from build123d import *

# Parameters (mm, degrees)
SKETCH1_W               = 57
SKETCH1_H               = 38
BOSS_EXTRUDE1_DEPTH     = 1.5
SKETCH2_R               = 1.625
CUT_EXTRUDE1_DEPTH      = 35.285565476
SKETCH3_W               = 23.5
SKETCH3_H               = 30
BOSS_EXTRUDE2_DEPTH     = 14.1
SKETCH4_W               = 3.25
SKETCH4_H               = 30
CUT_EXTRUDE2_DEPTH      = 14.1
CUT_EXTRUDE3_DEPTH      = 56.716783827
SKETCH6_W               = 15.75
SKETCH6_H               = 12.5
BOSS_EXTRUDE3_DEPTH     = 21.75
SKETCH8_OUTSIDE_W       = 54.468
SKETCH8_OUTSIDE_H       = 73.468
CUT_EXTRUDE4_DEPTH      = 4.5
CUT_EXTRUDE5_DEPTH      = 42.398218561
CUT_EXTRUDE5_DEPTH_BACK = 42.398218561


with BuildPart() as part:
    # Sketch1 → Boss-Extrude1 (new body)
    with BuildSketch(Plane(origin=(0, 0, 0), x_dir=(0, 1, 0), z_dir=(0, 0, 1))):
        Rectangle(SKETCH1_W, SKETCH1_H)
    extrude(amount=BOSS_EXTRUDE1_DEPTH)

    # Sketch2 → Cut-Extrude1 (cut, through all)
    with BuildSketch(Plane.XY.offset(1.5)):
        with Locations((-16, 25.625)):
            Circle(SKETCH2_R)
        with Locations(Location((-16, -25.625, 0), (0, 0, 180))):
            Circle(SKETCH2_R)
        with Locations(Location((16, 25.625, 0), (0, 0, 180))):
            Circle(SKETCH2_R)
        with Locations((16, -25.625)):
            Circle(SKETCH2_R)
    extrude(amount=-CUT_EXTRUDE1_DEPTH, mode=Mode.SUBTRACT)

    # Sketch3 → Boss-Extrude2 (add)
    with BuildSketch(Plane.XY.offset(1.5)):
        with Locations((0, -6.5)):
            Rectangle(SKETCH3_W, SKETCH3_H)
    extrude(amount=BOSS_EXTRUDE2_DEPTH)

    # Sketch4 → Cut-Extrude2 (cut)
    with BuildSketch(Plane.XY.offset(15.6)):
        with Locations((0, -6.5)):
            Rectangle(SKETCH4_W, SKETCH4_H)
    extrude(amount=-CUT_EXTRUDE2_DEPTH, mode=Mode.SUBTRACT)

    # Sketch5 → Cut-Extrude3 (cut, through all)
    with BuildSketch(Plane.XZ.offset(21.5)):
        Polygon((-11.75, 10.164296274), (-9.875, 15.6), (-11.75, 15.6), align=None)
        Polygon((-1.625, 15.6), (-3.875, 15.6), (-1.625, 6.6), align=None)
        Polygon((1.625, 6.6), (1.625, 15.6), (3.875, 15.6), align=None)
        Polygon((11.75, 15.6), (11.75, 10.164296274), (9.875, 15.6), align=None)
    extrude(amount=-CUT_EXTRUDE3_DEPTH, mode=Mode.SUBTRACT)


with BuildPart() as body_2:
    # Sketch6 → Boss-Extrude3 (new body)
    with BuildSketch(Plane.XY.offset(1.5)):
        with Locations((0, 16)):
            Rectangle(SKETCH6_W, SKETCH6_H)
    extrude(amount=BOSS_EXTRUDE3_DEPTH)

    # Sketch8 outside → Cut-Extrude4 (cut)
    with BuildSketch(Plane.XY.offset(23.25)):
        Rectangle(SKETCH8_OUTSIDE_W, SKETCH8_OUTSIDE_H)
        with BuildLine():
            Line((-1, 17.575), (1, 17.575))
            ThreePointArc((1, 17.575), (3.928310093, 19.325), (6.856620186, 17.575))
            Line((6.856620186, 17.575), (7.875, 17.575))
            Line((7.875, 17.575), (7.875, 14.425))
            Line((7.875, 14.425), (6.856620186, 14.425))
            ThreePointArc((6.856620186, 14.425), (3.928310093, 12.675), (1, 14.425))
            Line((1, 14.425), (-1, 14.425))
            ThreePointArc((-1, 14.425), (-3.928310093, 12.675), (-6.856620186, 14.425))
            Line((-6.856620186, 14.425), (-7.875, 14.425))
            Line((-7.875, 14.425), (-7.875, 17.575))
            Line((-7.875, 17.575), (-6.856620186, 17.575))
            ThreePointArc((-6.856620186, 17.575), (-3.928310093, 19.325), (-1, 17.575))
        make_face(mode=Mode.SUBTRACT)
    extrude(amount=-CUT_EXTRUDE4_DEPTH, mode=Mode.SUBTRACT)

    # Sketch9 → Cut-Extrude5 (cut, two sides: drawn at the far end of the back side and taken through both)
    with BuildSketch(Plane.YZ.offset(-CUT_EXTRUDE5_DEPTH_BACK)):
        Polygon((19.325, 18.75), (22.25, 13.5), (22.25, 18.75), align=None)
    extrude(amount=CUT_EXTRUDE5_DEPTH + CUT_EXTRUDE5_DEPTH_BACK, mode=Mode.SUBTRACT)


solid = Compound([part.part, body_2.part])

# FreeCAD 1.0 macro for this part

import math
import FreeCAD as App
import Part
import Sketcher
from FreeCAD import Vector

doc = App.newDocument("Part")
body = doc.addObject("PartDesign::Body", "Body")

# Sketch on XY plane
sketch1 = doc.addObject("Sketcher::SketchObject", "Sketch")
body.addObject(sketch1)
sketch1.AttachmentSupport = (doc.XY_Plane, [""])
sketch1.MapMode = "FlatFace"
sketch1.addGeometry([
    Part.LineSegment(Vector(-19, -28, 0), Vector(19, -28, 0)),
    Part.LineSegment(Vector(19, -28, 0), Vector(19, 28, 0)),
    Part.LineSegment(Vector(19, 28, 0), Vector(-19, 28, 0)),
    Part.LineSegment(Vector(-19, 28, 0), Vector(-19, -28, 0)),
], False)
sketch1.addConstraint([
    Sketcher.Constraint("Coincident", 0, 2, 1, 1),
    Sketcher.Constraint("Coincident", 1, 2, 2, 1),
    Sketcher.Constraint("Coincident", 2, 2, 3, 1),
    Sketcher.Constraint("Coincident", 3, 2, 0, 1),
    Sketcher.Constraint("Horizontal", 0),
    Sketcher.Constraint("Vertical", 1),
    Sketcher.Constraint("Horizontal", 2),
    Sketcher.Constraint("Vertical", 3),
    Sketcher.Constraint("Symmetric", 0, 2, 2, 2, -1, 1),
    Sketcher.Constraint("DistanceX", 0, 1, 0, 2, 38.0),
    Sketcher.Constraint("DistanceY", 1, 1, 1, 2, 57.0),
])
pad1 = doc.addObject("PartDesign::Pad", "Pad")
body.addObject(pad1)
pad1.Profile = sketch1
pad1.Length = 1.5

# Sketch on XY plane
sketch2 = doc.addObject("Sketcher::SketchObject", "Sketch001")
body.addObject(sketch2)
sketch2.AttachmentSupport = (doc.XY_Plane, [""])
sketch2.MapMode = "FlatFace"
sketch2.AttachmentOffset = App.Placement(Vector(0, 0, 1.5), App.Rotation())
sketch2.addGeometry([
    Part.Circle(Vector(-16, 25.6, 0), Vector(0, 0, 1), 1.6),
    Part.Circle(Vector(-16, -25.6, 0), Vector(0, 0, 1), 1.6),
    Part.Circle(Vector(16, 25.6, 0), Vector(0, 0, 1), 1.6),
    Part.Circle(Vector(16, -25.6, 0), Vector(0, 0, 1), 1.6),
], False)
sketch2.addConstraint([
    Sketcher.Constraint("Equal", 0, 1),
    Sketcher.Constraint("Equal", 1, 2),
    Sketcher.Constraint("Equal", 2, 3),
    Sketcher.Constraint("Symmetric", 1, 3, 2, 3, -1, 1),
    Sketcher.Constraint("Symmetric", 0, 3, 3, 3, -1, 1),
    Sketcher.Constraint("Symmetric", 0, 3, 2, 3, -2),
    Sketcher.Constraint("Diameter", 0, 3.25),
    Sketcher.Constraint("DistanceX", 0, 3, -1, 1, 16.0),
    Sketcher.Constraint("DistanceY", 1, 3, 0, 3, 51.25),
])
pocket1 = doc.addObject("PartDesign::Pocket", "Pocket")
body.addObject(pocket1)
pocket1.Profile = sketch2
pocket1.Type = "ThroughAll"

# Sketch on XY plane
sketch3 = doc.addObject("Sketcher::SketchObject", "Sketch002")
body.addObject(sketch3)
sketch3.AttachmentSupport = (doc.XY_Plane, [""])
sketch3.MapMode = "FlatFace"
sketch3.AttachmentOffset = App.Placement(Vector(0, 0, 1.5), App.Rotation())
sketch3.addGeometry([
    Part.LineSegment(Vector(-12, 8, 0), Vector(-12, -22, 0)),
    Part.LineSegment(Vector(-12, -22, 0), Vector(12, -22, 0)),
    Part.LineSegment(Vector(12, -22, 0), Vector(12, 8, 0)),
    Part.LineSegment(Vector(12, 8, 0), Vector(-12, 8, 0)),
], False)
sketch3.addConstraint([
    Sketcher.Constraint("Coincident", 0, 2, 1, 1),
    Sketcher.Constraint("Coincident", 1, 2, 2, 1),
    Sketcher.Constraint("Coincident", 2, 2, 3, 1),
    Sketcher.Constraint("Coincident", 3, 2, 0, 1),
    Sketcher.Constraint("Vertical", 0),
    Sketcher.Constraint("Horizontal", 1),
    Sketcher.Constraint("Vertical", 2),
    Sketcher.Constraint("Horizontal", 3),
    Sketcher.Constraint("DistanceY", 0, 2, 0, 1, 30.0),
    Sketcher.Constraint("DistanceX", 1, 1, 1, 2, 23.5),
    Sketcher.Constraint("DistanceY", 0, 2, -1, 1, 21.5),
    Sketcher.Constraint("DistanceX", 0, 2, -1, 1, 11.75),
])
pad2 = doc.addObject("PartDesign::Pad", "Pad001")
body.addObject(pad2)
pad2.Profile = sketch3
pad2.Length = 14.1

# Sketch on XY plane
sketch4 = doc.addObject("Sketcher::SketchObject", "Sketch003")
body.addObject(sketch4)
sketch4.AttachmentSupport = (doc.XY_Plane, [""])
sketch4.MapMode = "FlatFace"
sketch4.AttachmentOffset = App.Placement(Vector(0, 0, 15.6), App.Rotation())
sketch4.addGeometry([
    Part.LineSegment(Vector(-1.6, 8.5, 0), Vector(-1.6, -21.5, 0)),
    Part.LineSegment(Vector(-1.6, -21.5, 0), Vector(1.6, -21.5, 0)),
    Part.LineSegment(Vector(1.6, -21.5, 0), Vector(1.6, 8.5, 0)),
    Part.LineSegment(Vector(1.6, 8.5, 0), Vector(-1.6, 8.5, 0)),
], False)
sketch4.addConstraint([
    Sketcher.Constraint("Coincident", 0, 2, 1, 1),
    Sketcher.Constraint("Coincident", 1, 2, 2, 1),
    Sketcher.Constraint("Coincident", 2, 2, 3, 1),
    Sketcher.Constraint("Coincident", 3, 2, 0, 1),
    Sketcher.Constraint("Vertical", 0),
    Sketcher.Constraint("Horizontal", 1),
    Sketcher.Constraint("Vertical", 2),
    Sketcher.Constraint("Horizontal", 3),
    Sketcher.Constraint("DistanceY", 0, 2, 0, 1, 30.0),
    Sketcher.Constraint("DistanceX", 1, 1, 1, 2, 3.25),
    Sketcher.Constraint("DistanceY", 0, 2, -1, 1, 21.5),
    Sketcher.Constraint("DistanceX", 0, 2, -1, 1, 1.625),
])
pocket2 = doc.addObject("PartDesign::Pocket", "Pocket001")
body.addObject(pocket2)
pocket2.Profile = sketch4
pocket2.Length = 14.1

# Sketch on XZ plane
sketch5 = doc.addObject("Sketcher::SketchObject", "Sketch004")
body.addObject(sketch5)
sketch5.AttachmentSupport = (doc.XZ_Plane, [""])
sketch5.MapMode = "FlatFace"
sketch5.AttachmentOffset = App.Placement(Vector(0, 0, 21.5), App.Rotation())
sketch5.addGeometry([
    Part.LineSegment(Vector(-11.8, 10.2, 0), Vector(-9.9, 15.6, 0)),  # 0
    Part.LineSegment(Vector(-9.9, 15.6, 0), Vector(-11.8, 15.6, 0)),  # 1
    Part.LineSegment(Vector(-11.8, 15.6, 0), Vector(-11.8, 10.2, 0)),  # 2
    Part.LineSegment(Vector(-1.6, 15.6, 0), Vector(-3.9, 15.6, 0)),  # 3
    Part.LineSegment(Vector(-3.9, 15.6, 0), Vector(-1.6, 6.6, 0)),  # 4
    Part.LineSegment(Vector(-1.6, 6.6, 0), Vector(-1.6, 15.6, 0)),  # 5
    Part.LineSegment(Vector(1.6, 15.6, 0), Vector(1.6, 6.6, 0)),  # 6
    Part.LineSegment(Vector(1.6, 6.6, 0), Vector(3.9, 15.6, 0)),  # 7
    Part.LineSegment(Vector(3.9, 15.6, 0), Vector(1.6, 15.6, 0)),  # 8
    Part.LineSegment(Vector(11.8, 10.2, 0), Vector(11.8, 15.6, 0)),  # 9
    Part.LineSegment(Vector(11.8, 15.6, 0), Vector(9.9, 15.6, 0)),  # 10
    Part.LineSegment(Vector(9.9, 15.6, 0), Vector(11.8, 10.2, 0)),  # 11
], False)
sketch5.addConstraint([
    Sketcher.Constraint("Coincident", 0, 2, 1, 1),
    Sketcher.Constraint("Coincident", 1, 2, 2, 1),
    Sketcher.Constraint("Coincident", 2, 2, 0, 1),
    Sketcher.Constraint("Coincident", 3, 2, 4, 1),
    Sketcher.Constraint("Coincident", 4, 2, 5, 1),
    Sketcher.Constraint("Coincident", 5, 2, 3, 1),
    Sketcher.Constraint("Coincident", 6, 2, 7, 1),
    Sketcher.Constraint("Coincident", 7, 2, 8, 1),
    Sketcher.Constraint("Coincident", 8, 2, 6, 1),
    Sketcher.Constraint("Coincident", 9, 2, 10, 1),
    Sketcher.Constraint("Coincident", 10, 2, 11, 1),
    Sketcher.Constraint("Coincident", 11, 2, 9, 1),
    Sketcher.Constraint("Horizontal", 1),
    Sketcher.Constraint("Vertical", 2),
    Sketcher.Constraint("Horizontal", 3),
    Sketcher.Constraint("Vertical", 5),
    Sketcher.Constraint("Vertical", 6),
    Sketcher.Constraint("Horizontal", 8),
    Sketcher.Constraint("Vertical", 9),
    Sketcher.Constraint("Horizontal", 10),
    Sketcher.Constraint("Symmetric", 4, 2, 6, 2, -2),
    Sketcher.Constraint("Symmetric", 3, 2, 7, 2, -2),
    Sketcher.Constraint("Symmetric", 1, 2, 9, 2, -2),
    Sketcher.Constraint("Horizontal", 1, 2, 3, 2),
    Sketcher.Constraint("Horizontal", 2, 2, 11, 2),
    Sketcher.Constraint("Equal", 1, 10),
    Sketcher.Constraint("DistanceY", 5, 1, 5, 2, 9.0),
    Sketcher.Constraint("DistanceX", 0, 2, 3, 2, 6.0),
    Sketcher.Constraint("DistanceX", 3, 2, 3, 1, 2.25),
    Sketcher.Constraint("DistanceY", -1, 1, 0, 2, 15.6),
    Sketcher.Constraint("DistanceX", 3, 2, 6, 2, 5.5),
    Sketcher.Constraint("Distance", 0, 5.75),
    Sketcher.Constraint("DistanceX", 1, 2, 1, 1, 1.875),
])
pocket3 = doc.addObject("PartDesign::Pocket", "Pocket002")
body.addObject(pocket3)
pocket3.Profile = sketch5
pocket3.Type = "ThroughAll"
body2 = doc.addObject("PartDesign::Body", "Body001")

# Sketch on XY plane
sketch6 = doc.addObject("Sketcher::SketchObject", "Sketch005")
body2.addObject(sketch6)
sketch6.AttachmentSupport = (doc.getObject("XY_Plane001"), [""])
sketch6.MapMode = "FlatFace"
sketch6.AttachmentOffset = App.Placement(Vector(0, 0, 1.5), App.Rotation())
sketch6.addGeometry([
    Part.LineSegment(Vector(-8, 22, 0), Vector(-8, 10, 0)),
    Part.LineSegment(Vector(-8, 10, 0), Vector(8, 10, 0)),
    Part.LineSegment(Vector(8, 10, 0), Vector(8, 22, 0)),
    Part.LineSegment(Vector(8, 22, 0), Vector(-8, 22, 0)),
], False)
sketch6.addConstraint([
    Sketcher.Constraint("Coincident", 0, 2, 1, 1),
    Sketcher.Constraint("Coincident", 1, 2, 2, 1),
    Sketcher.Constraint("Coincident", 2, 2, 3, 1),
    Sketcher.Constraint("Coincident", 3, 2, 0, 1),
    Sketcher.Constraint("Vertical", 0),
    Sketcher.Constraint("Horizontal", 1),
    Sketcher.Constraint("Vertical", 2),
    Sketcher.Constraint("Horizontal", 3),
    Sketcher.Constraint("DistanceY", 0, 2, 0, 1, 12.5),
    Sketcher.Constraint("DistanceX", 1, 1, 1, 2, 15.75),
    Sketcher.Constraint("DistanceY", -1, 1, 0, 2, 9.75),
    Sketcher.Constraint("DistanceX", 0, 2, -1, 1, 7.875),
])
pad3 = doc.addObject("PartDesign::Pad", "Pad002")
body2.addObject(pad3)
pad3.Profile = sketch6
pad3.Length = 21.75

# Sketch on XY plane
sketch7 = doc.addObject("Sketcher::SketchObject", "Sketch006")
body2.addObject(sketch7)
sketch7.AttachmentSupport = (doc.getObject("XY_Plane001"), [""])
sketch7.MapMode = "FlatFace"
sketch7.AttachmentOffset = App.Placement(Vector(0, 0, 23.25), App.Rotation())
sketch7.addGeometry([
    Part.LineSegment(Vector(-27.2, 36.7, 0), Vector(-27.2, -36.7, 0)),  # 0
    Part.LineSegment(Vector(-27.2, -36.7, 0), Vector(27.2, -36.7, 0)),  # 1
    Part.LineSegment(Vector(27.2, -36.7, 0), Vector(27.2, 36.7, 0)),  # 2
    Part.LineSegment(Vector(27.2, 36.7, 0), Vector(-27.2, 36.7, 0)),  # 3
    Part.ArcOfCircle(Part.Circle(Vector(-3.9, 16, 0), Vector(0, 0, 1), 3.3), math.radians(28), math.radians(152)),  # 4
    Part.LineSegment(Vector(-1, 17.6, 0), Vector(1, 17.6, 0)),  # 5
    Part.ArcOfCircle(Part.Circle(Vector(3.9, 16, 0), Vector(0, 0, 1), 3.3), math.radians(28), math.radians(152)),  # 6
    Part.LineSegment(Vector(6.9, 17.6, 0), Vector(7.9, 17.6, 0)),  # 7
    Part.LineSegment(Vector(7.9, 17.6, 0), Vector(7.9, 14.4, 0)),  # 8
    Part.LineSegment(Vector(7.9, 14.4, 0), Vector(6.9, 14.4, 0)),  # 9
    Part.ArcOfCircle(Part.Circle(Vector(3.9, 16, 0), Vector(0, 0, 1), 3.3), math.radians(-152), math.radians(-28)),  # 10
    Part.LineSegment(Vector(1, 14.4, 0), Vector(-1, 14.4, 0)),  # 11
    Part.ArcOfCircle(Part.Circle(Vector(-3.9, 16, 0), Vector(0, 0, 1), 3.3), math.radians(-152), math.radians(-28)),  # 12
    Part.LineSegment(Vector(-6.9, 14.4, 0), Vector(-7.9, 14.4, 0)),  # 13
    Part.LineSegment(Vector(-7.9, 14.4, 0), Vector(-7.9, 17.6, 0)),  # 14
    Part.LineSegment(Vector(-7.9, 17.6, 0), Vector(-6.9, 17.6, 0)),  # 15
], False)
sketch7.addConstraint([
    Sketcher.Constraint("Coincident", 0, 2, 1, 1),
    Sketcher.Constraint("Coincident", 1, 2, 2, 1),
    Sketcher.Constraint("Coincident", 2, 2, 3, 1),
    Sketcher.Constraint("Coincident", 3, 2, 0, 1),
    Sketcher.Constraint("Coincident", 4, 1, 5, 1),
    Sketcher.Constraint("Coincident", 5, 2, 6, 2),
    Sketcher.Constraint("Coincident", 6, 1, 7, 1),
    Sketcher.Constraint("Coincident", 7, 2, 8, 1),
    Sketcher.Constraint("Coincident", 8, 2, 9, 1),
    Sketcher.Constraint("Coincident", 9, 2, 10, 2),
    Sketcher.Constraint("Coincident", 10, 1, 11, 1),
    Sketcher.Constraint("Coincident", 11, 2, 12, 2),
    Sketcher.Constraint("Coincident", 12, 1, 13, 1),
    Sketcher.Constraint("Coincident", 13, 2, 14, 1),
    Sketcher.Constraint("Coincident", 14, 2, 15, 1),
    Sketcher.Constraint("Coincident", 15, 2, 4, 2),
    Sketcher.Constraint("Vertical", 0),
    Sketcher.Constraint("Horizontal", 1),
    Sketcher.Constraint("Vertical", 2),
    Sketcher.Constraint("Horizontal", 3),
    Sketcher.Constraint("Horizontal", 5),
    Sketcher.Constraint("Horizontal", 7),
    Sketcher.Constraint("Vertical", 8),
    Sketcher.Constraint("Horizontal", 9),
    Sketcher.Constraint("Horizontal", 11),
    Sketcher.Constraint("Horizontal", 13),
    Sketcher.Constraint("Vertical", 14),
    Sketcher.Constraint("Horizontal", 15),
    Sketcher.Constraint("Coincident", 10, 3, 6, 3),
    Sketcher.Constraint("Coincident", 12, 3, 4, 3),
    Sketcher.Constraint("Equal", 4, 6),
    Sketcher.Constraint("Equal", 6, 10),
    Sketcher.Constraint("Equal", 10, 12),
    Sketcher.Constraint("Symmetric", 0, 2, 2, 2, -1, 1),
    Sketcher.Constraint("Symmetric", 4, 3, 6, 3, -2),
    Sketcher.Constraint("Symmetric", 8, 2, 13, 2, -2),
    Sketcher.Constraint("Horizontal", 5, 2, 6, 1),
    Sketcher.Constraint("Horizontal", 9, 2, 10, 1),
    Sketcher.Constraint("Horizontal", 7, 2, 14, 2),
    Sketcher.Constraint("Vertical", 6, 1, 9, 2),
    Sketcher.Constraint("DistanceX", 5, 1, 5, 2, 2.0),
    Sketcher.Constraint("DistanceY", -1, 1, 4, 3, 16.0),
    Sketcher.Constraint("Radius", 4, 3.325),
    Sketcher.Constraint("DistanceY", 8, 2, 8, 1, 3.15),
    Sketcher.Constraint("DistanceX", 1, 1, 1, 2, 54.468),
    Sketcher.Constraint("DistanceY", 0, 2, 0, 1, 73.468),
    Sketcher.Constraint("DistanceX", -1, 1, 7, 2, 7.875),
])
pocket4 = doc.addObject("PartDesign::Pocket", "Pocket003")
body2.addObject(pocket4)
pocket4.Profile = sketch7
pocket4.Length = 4.5

# Sketch on YZ plane
sketch8 = doc.addObject("Sketcher::SketchObject", "Sketch007")
body2.addObject(sketch8)
sketch8.AttachmentSupport = (doc.getObject("YZ_Plane001"), [""])
sketch8.MapMode = "FlatFace"
sketch8.addGeometry([
    Part.LineSegment(Vector(19.3, 18.8, 0), Vector(22.2, 13.5, 0)),
    Part.LineSegment(Vector(22.2, 13.5, 0), Vector(22.2, 18.8, 0)),
    Part.LineSegment(Vector(22.2, 18.8, 0), Vector(19.3, 18.8, 0)),
], False)
sketch8.addConstraint([
    Sketcher.Constraint("Coincident", 0, 2, 1, 1),
    Sketcher.Constraint("Coincident", 1, 2, 2, 1),
    Sketcher.Constraint("Coincident", 2, 2, 0, 1),
    Sketcher.Constraint("Vertical", 1),
    Sketcher.Constraint("Horizontal", 2),
    Sketcher.Constraint("DistanceY", 1, 1, 1, 2, 5.25),
    Sketcher.Constraint("DistanceY", -1, 1, 0, 2, 13.5),
    Sketcher.Constraint("DistanceX", 2, 2, 2, 1, 2.925),
    Sketcher.Constraint("DistanceX", -1, 1, 0, 2, 22.25),
])
pocket5 = doc.addObject("PartDesign::Pocket", "Pocket004")
body2.addObject(pocket5)
pocket5.Profile = sketch8
pocket5.Type = "ThroughAll"
pocket5.Midplane = True

doc.recompute()
